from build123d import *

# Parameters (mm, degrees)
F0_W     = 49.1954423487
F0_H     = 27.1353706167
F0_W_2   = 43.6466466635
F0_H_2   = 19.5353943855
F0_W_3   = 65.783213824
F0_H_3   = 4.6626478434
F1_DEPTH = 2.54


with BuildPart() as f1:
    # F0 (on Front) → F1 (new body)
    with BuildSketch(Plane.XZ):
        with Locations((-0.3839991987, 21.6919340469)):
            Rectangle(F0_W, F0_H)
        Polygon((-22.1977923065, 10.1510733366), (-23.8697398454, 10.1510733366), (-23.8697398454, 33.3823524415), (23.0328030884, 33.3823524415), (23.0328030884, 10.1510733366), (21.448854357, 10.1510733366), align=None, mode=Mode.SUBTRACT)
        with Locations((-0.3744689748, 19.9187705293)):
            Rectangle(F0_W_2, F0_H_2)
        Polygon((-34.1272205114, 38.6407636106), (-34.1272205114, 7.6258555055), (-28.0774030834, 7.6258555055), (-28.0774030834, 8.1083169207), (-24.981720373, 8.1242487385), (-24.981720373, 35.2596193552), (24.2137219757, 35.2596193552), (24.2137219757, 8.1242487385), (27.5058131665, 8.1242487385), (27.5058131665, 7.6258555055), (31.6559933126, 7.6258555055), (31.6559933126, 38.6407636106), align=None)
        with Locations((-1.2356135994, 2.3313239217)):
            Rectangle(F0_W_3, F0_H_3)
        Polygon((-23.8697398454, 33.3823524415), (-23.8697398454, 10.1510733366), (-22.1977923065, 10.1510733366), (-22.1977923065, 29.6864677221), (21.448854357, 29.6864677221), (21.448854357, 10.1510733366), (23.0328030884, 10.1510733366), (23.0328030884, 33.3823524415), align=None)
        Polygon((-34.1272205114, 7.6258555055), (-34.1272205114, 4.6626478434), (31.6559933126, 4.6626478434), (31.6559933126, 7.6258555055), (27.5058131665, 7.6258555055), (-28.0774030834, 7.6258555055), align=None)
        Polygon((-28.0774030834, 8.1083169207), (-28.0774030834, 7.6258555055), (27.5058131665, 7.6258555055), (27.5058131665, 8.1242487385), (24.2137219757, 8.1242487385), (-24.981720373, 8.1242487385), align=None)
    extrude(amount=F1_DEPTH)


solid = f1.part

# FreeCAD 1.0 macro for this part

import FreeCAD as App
import Part
import Sketcher
Q = App.Units.Quantity


def add_polygon(sketch, points):
    """Adds a closed chain of lines whose ends are joined by coincident constraints."""
    first, n = sketch.GeometryCount, len(points)
    for a, b in zip(points, points[1:] + points[:1]):
        sketch.addGeometry(Part.LineSegment(App.Vector(*a, 0), App.Vector(*b, 0)), False)
    for i in range(n):
        sketch.addConstraint(Sketcher.Constraint("Coincident", first + i, 2, first + (i + 1) % n, 1))

doc = App.newDocument("Part")
body = doc.addObject("PartDesign::Body", "Body")

# Sketch on XZ plane
sketch1 = body.newObject("Sketcher::SketchObject", "Sketch")
sketch1.AttachmentSupport = (doc.getObject("XZ_Plane"), [""])
sketch1.MapMode = "FlatFace"
add_polygon(sketch1, [(32, 39), (-34, 39), (-34, 0), (32, 0)])  # lines 0-3
sketch1.addConstraint(Sketcher.Constraint("Horizontal", 0))
sketch1.addConstraint(Sketcher.Constraint("Vertical", 1))
sketch1.addConstraint(Sketcher.Constraint("Horizontal", 2))
sketch1.addConstraint(Sketcher.Constraint("Vertical", 3))
sketch1.addConstraint(Sketcher.Constraint("PointOnObject", 1, 2, -1))
sketch1.addConstraint(Sketcher.Constraint("DistanceX", 0, 2, 0, 1, 65.783214))
sketch1.addConstraint(Sketcher.Constraint("DistanceY", 1, 2, 1, 1, 38.640764))
sketch1.addConstraint(Sketcher.Constraint("DistanceX", 0, 2, -1, 1, 34.127221))
pad1 = body.newObject("PartDesign::Pad", "Pad")
pad1.Profile = sketch1
pad1.Length = Q("0.1 in")

doc.recompute()
